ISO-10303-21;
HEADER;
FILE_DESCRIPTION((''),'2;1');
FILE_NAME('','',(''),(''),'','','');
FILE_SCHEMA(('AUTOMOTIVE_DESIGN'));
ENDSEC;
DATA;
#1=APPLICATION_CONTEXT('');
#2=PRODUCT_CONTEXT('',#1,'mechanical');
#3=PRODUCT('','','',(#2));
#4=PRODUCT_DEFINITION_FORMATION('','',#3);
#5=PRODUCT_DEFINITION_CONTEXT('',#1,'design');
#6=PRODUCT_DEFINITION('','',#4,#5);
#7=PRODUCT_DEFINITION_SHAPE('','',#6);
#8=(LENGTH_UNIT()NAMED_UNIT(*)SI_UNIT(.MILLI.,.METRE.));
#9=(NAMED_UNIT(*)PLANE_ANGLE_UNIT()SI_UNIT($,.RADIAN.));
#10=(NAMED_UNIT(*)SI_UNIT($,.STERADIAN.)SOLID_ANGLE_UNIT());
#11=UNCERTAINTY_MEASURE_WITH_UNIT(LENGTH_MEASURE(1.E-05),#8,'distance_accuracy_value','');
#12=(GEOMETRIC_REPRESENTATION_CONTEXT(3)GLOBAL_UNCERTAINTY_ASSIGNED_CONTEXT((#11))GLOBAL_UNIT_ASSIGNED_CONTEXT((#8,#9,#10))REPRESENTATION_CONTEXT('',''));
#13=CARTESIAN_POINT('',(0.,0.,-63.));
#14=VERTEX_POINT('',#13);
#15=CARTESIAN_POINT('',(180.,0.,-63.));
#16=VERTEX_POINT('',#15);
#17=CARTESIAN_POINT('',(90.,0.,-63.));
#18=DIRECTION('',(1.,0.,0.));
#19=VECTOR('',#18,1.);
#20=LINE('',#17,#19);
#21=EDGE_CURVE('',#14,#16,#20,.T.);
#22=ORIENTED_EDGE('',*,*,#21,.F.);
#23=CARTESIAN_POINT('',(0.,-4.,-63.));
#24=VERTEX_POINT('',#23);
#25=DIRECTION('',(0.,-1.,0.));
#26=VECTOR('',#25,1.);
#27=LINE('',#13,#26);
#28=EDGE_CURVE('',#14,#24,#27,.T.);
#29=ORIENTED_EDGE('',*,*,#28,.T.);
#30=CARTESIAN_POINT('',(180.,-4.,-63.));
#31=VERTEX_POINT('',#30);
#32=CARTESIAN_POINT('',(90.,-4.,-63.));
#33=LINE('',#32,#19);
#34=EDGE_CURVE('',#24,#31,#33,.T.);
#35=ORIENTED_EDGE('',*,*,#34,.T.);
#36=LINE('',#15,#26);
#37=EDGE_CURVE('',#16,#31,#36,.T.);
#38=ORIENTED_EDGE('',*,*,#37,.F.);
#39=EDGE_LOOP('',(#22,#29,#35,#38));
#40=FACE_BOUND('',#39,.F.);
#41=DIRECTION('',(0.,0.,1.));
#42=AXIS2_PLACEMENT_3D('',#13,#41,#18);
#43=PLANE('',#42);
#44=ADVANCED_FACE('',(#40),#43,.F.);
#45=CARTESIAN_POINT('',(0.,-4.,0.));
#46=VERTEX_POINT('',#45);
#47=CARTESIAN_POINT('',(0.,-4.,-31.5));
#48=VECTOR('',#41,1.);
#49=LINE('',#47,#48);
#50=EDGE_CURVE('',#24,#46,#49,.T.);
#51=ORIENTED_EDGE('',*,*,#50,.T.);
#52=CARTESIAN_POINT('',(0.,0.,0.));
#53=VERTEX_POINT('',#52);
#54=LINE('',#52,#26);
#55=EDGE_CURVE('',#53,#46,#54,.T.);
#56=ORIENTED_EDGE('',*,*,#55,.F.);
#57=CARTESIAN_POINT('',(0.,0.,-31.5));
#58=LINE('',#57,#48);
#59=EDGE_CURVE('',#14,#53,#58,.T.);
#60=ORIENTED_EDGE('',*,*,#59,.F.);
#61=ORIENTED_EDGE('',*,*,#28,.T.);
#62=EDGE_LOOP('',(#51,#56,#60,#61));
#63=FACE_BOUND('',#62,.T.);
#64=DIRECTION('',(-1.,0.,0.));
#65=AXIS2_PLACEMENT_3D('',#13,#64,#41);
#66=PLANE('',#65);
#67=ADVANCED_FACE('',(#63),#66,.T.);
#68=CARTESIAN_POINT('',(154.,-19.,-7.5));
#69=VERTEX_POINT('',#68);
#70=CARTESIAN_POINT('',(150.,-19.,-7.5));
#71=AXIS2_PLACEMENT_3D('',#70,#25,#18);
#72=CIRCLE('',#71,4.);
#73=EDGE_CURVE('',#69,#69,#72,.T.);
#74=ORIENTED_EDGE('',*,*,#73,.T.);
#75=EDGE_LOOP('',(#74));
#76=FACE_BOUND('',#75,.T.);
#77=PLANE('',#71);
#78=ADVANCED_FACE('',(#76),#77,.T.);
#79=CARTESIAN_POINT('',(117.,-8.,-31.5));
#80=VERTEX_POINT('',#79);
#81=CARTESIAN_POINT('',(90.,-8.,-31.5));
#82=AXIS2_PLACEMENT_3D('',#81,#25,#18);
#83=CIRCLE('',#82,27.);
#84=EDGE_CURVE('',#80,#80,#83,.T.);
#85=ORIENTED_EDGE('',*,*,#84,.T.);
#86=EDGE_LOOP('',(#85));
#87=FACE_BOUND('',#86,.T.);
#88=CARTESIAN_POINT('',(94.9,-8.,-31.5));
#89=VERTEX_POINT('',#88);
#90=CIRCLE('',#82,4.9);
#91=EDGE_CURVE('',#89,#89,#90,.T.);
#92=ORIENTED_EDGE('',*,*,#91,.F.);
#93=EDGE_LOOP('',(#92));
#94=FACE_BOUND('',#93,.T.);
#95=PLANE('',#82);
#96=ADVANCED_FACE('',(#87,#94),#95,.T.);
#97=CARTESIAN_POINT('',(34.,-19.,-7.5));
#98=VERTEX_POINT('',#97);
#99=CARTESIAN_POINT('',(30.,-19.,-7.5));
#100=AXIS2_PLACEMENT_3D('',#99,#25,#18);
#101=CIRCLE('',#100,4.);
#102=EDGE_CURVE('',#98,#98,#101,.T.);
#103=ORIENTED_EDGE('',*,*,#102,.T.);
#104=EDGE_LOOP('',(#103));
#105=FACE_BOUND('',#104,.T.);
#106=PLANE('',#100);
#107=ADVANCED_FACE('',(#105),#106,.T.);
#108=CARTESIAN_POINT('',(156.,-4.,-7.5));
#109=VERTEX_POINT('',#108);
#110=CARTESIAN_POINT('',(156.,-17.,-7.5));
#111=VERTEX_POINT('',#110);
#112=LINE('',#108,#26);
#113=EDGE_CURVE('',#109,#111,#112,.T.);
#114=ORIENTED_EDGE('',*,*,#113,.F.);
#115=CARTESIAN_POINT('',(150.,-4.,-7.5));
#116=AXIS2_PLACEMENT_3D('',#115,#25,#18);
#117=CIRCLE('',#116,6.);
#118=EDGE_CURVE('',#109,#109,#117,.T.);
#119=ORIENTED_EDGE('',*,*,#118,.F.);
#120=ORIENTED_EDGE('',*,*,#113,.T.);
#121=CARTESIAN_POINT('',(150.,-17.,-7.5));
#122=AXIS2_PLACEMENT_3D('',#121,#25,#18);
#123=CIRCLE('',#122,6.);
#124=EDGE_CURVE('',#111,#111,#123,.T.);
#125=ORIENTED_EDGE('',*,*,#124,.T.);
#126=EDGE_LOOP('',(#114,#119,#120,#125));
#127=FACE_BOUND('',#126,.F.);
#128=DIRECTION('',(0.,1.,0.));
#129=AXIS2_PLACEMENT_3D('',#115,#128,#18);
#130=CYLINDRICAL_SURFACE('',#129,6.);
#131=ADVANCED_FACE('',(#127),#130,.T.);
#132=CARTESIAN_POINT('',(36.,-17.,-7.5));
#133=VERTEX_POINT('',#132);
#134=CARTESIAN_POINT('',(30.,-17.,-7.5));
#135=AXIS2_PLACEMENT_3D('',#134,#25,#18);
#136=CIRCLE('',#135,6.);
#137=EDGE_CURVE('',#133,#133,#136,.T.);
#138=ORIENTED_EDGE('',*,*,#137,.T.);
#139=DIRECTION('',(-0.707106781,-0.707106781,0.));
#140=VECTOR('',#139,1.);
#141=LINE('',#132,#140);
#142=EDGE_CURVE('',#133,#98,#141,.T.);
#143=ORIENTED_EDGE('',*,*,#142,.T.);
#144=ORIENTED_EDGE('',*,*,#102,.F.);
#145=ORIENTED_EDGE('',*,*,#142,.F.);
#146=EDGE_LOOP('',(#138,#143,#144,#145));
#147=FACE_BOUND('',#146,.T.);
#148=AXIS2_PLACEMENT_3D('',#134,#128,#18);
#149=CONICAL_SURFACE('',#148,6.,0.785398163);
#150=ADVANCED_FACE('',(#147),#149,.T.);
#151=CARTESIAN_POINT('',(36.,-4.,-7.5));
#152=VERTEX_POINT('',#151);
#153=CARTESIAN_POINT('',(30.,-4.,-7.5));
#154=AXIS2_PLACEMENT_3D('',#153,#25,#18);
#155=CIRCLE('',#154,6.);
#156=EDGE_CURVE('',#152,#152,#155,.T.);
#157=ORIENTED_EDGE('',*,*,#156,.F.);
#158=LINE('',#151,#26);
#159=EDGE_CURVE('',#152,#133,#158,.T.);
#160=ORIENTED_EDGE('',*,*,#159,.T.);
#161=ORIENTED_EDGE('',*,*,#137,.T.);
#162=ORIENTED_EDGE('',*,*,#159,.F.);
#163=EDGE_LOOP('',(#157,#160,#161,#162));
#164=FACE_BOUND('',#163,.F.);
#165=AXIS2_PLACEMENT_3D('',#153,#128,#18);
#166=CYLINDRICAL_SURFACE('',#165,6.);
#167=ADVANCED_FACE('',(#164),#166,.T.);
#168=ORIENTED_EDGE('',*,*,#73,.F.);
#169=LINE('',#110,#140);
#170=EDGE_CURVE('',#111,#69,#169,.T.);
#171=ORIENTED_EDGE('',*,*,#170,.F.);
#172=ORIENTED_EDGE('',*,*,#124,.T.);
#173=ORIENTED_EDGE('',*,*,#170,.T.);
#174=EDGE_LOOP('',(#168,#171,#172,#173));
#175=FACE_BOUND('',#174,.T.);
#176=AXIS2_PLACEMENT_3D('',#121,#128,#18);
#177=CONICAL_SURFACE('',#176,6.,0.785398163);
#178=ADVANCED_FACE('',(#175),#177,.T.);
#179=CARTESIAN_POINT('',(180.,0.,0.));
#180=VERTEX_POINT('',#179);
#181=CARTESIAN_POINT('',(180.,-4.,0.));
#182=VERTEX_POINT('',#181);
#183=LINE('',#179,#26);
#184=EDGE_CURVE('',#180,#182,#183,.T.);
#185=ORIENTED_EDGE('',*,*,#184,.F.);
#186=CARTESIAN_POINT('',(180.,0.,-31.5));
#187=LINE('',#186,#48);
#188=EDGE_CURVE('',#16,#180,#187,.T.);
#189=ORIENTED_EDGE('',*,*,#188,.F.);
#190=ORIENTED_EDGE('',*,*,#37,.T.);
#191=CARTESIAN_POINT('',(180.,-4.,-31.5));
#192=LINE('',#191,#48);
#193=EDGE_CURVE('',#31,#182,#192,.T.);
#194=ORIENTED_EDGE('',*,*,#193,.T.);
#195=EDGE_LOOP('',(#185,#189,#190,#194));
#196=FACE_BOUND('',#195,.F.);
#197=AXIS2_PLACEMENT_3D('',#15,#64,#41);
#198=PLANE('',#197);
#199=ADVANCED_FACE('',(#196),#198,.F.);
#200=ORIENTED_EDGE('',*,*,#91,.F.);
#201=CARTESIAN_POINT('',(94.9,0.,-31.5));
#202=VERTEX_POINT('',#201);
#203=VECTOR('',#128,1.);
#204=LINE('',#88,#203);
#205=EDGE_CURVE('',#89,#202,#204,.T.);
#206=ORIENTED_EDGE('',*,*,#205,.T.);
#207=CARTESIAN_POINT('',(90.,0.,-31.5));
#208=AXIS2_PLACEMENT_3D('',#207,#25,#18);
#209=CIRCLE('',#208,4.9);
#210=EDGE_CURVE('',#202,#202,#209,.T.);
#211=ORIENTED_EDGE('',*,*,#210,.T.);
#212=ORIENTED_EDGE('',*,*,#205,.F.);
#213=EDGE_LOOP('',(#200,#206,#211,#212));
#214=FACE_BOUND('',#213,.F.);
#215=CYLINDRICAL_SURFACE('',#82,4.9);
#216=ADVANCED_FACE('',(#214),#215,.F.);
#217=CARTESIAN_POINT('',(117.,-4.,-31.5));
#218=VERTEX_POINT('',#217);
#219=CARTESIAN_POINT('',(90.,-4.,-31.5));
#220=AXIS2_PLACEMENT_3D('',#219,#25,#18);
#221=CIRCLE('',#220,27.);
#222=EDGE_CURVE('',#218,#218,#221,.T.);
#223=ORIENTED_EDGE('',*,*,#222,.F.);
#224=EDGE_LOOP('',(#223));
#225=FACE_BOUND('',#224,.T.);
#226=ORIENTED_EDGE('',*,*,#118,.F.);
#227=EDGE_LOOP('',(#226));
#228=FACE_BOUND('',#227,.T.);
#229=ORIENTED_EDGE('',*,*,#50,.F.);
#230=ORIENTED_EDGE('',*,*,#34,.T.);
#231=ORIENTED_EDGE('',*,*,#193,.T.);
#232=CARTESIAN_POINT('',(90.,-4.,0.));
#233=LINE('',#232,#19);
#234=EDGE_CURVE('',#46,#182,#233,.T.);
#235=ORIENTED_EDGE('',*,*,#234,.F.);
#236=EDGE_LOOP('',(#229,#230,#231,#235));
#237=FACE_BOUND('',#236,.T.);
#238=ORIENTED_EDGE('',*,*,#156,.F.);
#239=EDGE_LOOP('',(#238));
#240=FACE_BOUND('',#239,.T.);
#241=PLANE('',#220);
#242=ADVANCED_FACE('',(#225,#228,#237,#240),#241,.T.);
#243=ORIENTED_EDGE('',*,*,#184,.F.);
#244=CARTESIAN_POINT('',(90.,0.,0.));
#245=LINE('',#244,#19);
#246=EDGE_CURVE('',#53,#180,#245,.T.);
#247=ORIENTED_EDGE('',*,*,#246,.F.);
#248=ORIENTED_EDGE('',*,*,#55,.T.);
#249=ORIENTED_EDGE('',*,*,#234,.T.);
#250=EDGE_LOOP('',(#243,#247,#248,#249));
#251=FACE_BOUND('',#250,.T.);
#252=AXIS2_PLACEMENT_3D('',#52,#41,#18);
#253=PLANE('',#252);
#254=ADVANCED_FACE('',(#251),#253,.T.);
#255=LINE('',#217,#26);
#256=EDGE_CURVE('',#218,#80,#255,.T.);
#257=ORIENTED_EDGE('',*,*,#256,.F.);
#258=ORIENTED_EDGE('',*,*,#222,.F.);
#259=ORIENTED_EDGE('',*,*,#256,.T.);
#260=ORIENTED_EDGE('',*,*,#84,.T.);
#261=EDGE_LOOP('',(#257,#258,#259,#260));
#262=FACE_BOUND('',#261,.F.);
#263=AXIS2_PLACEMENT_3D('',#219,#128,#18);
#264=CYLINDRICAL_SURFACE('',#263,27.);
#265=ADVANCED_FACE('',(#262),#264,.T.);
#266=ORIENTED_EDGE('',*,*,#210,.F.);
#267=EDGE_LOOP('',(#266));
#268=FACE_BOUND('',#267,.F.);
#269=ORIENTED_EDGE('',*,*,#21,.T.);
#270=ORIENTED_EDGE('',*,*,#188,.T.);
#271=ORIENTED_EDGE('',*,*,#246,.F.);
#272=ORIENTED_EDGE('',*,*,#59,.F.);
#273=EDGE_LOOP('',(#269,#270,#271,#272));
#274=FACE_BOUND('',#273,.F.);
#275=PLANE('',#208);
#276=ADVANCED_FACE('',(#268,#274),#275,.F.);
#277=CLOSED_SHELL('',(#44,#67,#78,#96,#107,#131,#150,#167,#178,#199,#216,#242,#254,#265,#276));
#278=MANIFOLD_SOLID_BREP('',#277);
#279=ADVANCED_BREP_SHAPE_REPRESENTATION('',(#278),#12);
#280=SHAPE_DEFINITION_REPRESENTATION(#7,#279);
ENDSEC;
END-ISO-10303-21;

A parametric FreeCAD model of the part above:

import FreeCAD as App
import Part
import Sketcher
from FreeCAD import Vector


def edges_at(feature, points):
    """Names of the edges that pass closest to the given points."""
    edges = feature.Shape.Edges
    near = lambda p: min(range(len(edges)), key=lambda i: edges[i].distToShape(Part.Vertex(*p))[0])
    return sorted({f"Edge{near(p) + 1}" for p in points})

doc = App.newDocument("Part")
body = doc.addObject("PartDesign::Body", "Body")

# Sketch on XZ plane
sketch1 = body.newObject("Sketcher::SketchObject", "Sketch")
sketch1.AttachmentSupport = (doc.getObject("XZ_Plane"), [""])
sketch1.MapMode = "FlatFace"
sketch1.addGeometry([
    Part.LineSegment(Vector(0, 0, 0), Vector(0, -63, 0)),
    Part.LineSegment(Vector(0, -63, 0), Vector(180, -63, 0)),
    Part.LineSegment(Vector(180, -63, 0), Vector(180, 0, 0)),
    Part.LineSegment(Vector(180, 0, 0), Vector(0, 0, 0)),
], False)
sketch1.addConstraint([
    Sketcher.Constraint("Coincident", 0, 2, 1, 1),
    Sketcher.Constraint("Coincident", 1, 2, 2, 1),
    Sketcher.Constraint("Coincident", 2, 2, 3, 1),
    Sketcher.Constraint("Coincident", 3, 2, 0, 1),
    Sketcher.Constraint("Vertical", 0),
    Sketcher.Constraint("Horizontal", 1),
    Sketcher.Constraint("Vertical", 2),
    Sketcher.Constraint("Horizontal", 3),
    Sketcher.Constraint("Coincident", 3, 2, -1, 1),
    Sketcher.Constraint("DistanceX", 1, 1, 1, 2, 180.0),
    Sketcher.Constraint("DistanceY", 0, 2, 0, 1, 63.0),
])
pad1 = body.newObject("PartDesign::Pad", "Pad")
pad1.Profile = sketch1
pad1.Length = 4

# Sketch on XZ plane
sketch2 = body.newObject("Sketcher::SketchObject", "Sketch001")
sketch2.AttachmentSupport = (doc.getObject("XZ_Plane"), [""])
sketch2.MapMode = "FlatFace"
sketch2.AttachmentOffset = App.Placement(Vector(0, 0, 4), App.Rotation())
sketch2.addGeometry(Part.Circle(Vector(90, -31.5, 0), Vector(0, 0, 1), 27), False)
sketch2.addConstraint([
    Sketcher.Constraint("Diameter", 0, 54.0),
    Sketcher.Constraint("DistanceX", -1, 1, 0, 3, 90.0),
    Sketcher.Constraint("DistanceY", 0, 3, -1, 1, 31.5),
])
pad2 = body.newObject("PartDesign::Pad", "Pad001")
pad2.Profile = sketch2
pad2.Length = 4

# Sketch on XZ plane
sketch3 = body.newObject("Sketcher::SketchObject", "Sketch002")
sketch3.AttachmentSupport = (doc.getObject("XZ_Plane"), [""])
sketch3.MapMode = "FlatFace"
sketch3.AttachmentOffset = App.Placement(Vector(0, 0, 4), App.Rotation())
sketch3.addGeometry([
    Part.Circle(Vector(30, -7.5, 0), Vector(0, 0, 1), 6),
    Part.Circle(Vector(150, -7.5, 0), Vector(0, 0, 1), 6),
], False)
sketch3.addConstraint([
    Sketcher.Constraint("Equal", 0, 1),
    Sketcher.Constraint("Horizontal", 0, 3, 1, 3),
    Sketcher.Constraint("Diameter", 0, 12.0),
    Sketcher.Constraint("DistanceX", -1, 1, 0, 3, 30.0),
    Sketcher.Constraint("DistanceX", -1, 1, 1, 3, 150.0),
    Sketcher.Constraint("DistanceY", 0, 3, -1, 1, 7.5),
])
pad3 = body.newObject("PartDesign::Pad", "Pad002")
pad3.Profile = sketch3
pad3.Length = 15
doc.recompute()

chamfer = body.newObject("PartDesign::Chamfer", "Chamfer")
chamfer.Base = (pad3, edges_at(pad3, [(24, -19, -7.5), (144, -19, -7.5)]))
chamfer.Size = 2

# Sketch on XZ plane
sketch4 = body.newObject("Sketcher::SketchObject", "Sketch003")
sketch4.AttachmentSupport = (doc.getObject("XZ_Plane"), [""])
sketch4.MapMode = "FlatFace"
sketch4.AttachmentOffset = App.Placement(Vector(0, 0, 8), App.Rotation())
sketch4.addGeometry(Part.Circle(Vector(90, -31.5, 0), Vector(0, 0, 1), 4.9), False)
sketch4.addConstraint([
    Sketcher.Constraint("Diameter", 0, 9.8),
    Sketcher.Constraint("DistanceX", -1, 1, 0, 3, 90.0),
    Sketcher.Constraint("DistanceY", 0, 3, -1, 1, 31.5),
])
pocket1 = body.newObject("PartDesign::Pocket", "Pocket")
pocket1.Profile = sketch4
pocket1.Length = 25

doc.recompute()
